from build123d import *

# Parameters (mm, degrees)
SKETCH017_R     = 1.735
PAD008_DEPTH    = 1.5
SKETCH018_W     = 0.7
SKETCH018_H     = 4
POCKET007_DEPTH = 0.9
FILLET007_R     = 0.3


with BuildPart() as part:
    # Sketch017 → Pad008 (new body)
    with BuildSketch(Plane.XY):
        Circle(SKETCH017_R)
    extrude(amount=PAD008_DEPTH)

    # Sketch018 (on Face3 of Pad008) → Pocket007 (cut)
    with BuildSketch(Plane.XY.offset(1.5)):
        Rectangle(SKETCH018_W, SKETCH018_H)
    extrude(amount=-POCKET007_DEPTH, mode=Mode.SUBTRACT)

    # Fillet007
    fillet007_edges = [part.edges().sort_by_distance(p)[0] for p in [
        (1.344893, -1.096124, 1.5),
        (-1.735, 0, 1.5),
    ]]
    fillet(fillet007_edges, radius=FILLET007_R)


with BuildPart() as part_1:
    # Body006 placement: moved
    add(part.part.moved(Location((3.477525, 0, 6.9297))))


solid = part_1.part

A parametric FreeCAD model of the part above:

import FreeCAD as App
import Part
import Sketcher


def edges_at(feature, points):
    """Names of the edges that pass closest to the given points."""
    edges = feature.Shape.Edges
    near = lambda p: min(range(len(edges)), key=lambda i: edges[i].distToShape(Part.Vertex(*p))[0])
    return sorted({f"Edge{near(p) + 1}" for p in points})

doc = App.newDocument("Part")
body = doc.addObject("PartDesign::Body", "Body")

# Sketch on XY plane
sketch1 = body.newObject("Sketcher::SketchObject", "Sketch")
sketch1.AttachmentSupport = (doc.getObject("XY_Plane"), [""])
sketch1.MapMode = "FlatFace"
sketch1.addGeometry(Part.Circle(App.Vector(0, 0, 0), App.Vector(0, 0, 1), 1.7), False)
sketch1.addConstraint(Sketcher.Constraint("Coincident", 0, 3, -1, 1))
sketch1.addConstraint(Sketcher.Constraint("Diameter", 0, 3.47))
pad1 = body.newObject("PartDesign::Pad", "Pad")
pad1.Profile = sketch1
pad1.Length = 1.5

# Sketch on XY plane
sketch2 = body.newObject("Sketcher::SketchObject", "Sketch001")
sketch2.AttachmentSupport = (doc.getObject("XY_Plane"), [""])
sketch2.MapMode = "FlatFace"
sketch2.AttachmentOffset = App.Placement(App.Vector(0, 0, 1.5), App.Rotation())
sketch2.addGeometry(Part.LineSegment(App.Vector(-0.3, 2, 0), App.Vector(-0.3, -2, 0)), False)
sketch2.addGeometry(Part.LineSegment(App.Vector(-0.3, -2, 0), App.Vector(0.3, -2, 0)), False)
sketch2.addGeometry(Part.LineSegment(App.Vector(0.3, -2, 0), App.Vector(0.3, 2, 0)), False)
sketch2.addGeometry(Part.LineSegment(App.Vector(0.3, 2, 0), App.Vector(-0.3, 2, 0)), False)
sketch2.addConstraint(Sketcher.Constraint("Coincident", 0, 2, 1, 1))
sketch2.addConstraint(Sketcher.Constraint("Coincident", 1, 2, 2, 1))
sketch2.addConstraint(Sketcher.Constraint("Coincident", 2, 2, 3, 1))
sketch2.addConstraint(Sketcher.Constraint("Coincident", 3, 2, 0, 1))
sketch2.addConstraint(Sketcher.Constraint("Vertical", 0))
sketch2.addConstraint(Sketcher.Constraint("Horizontal", 1))
sketch2.addConstraint(Sketcher.Constraint("Vertical", 2))
sketch2.addConstraint(Sketcher.Constraint("Horizontal", 3))
sketch2.addConstraint(Sketcher.Constraint("Symmetric", 0, 2, 2, 2, -1, 1))
sketch2.addConstraint(Sketcher.Constraint("DistanceY", 0, 2, 0, 1, 4.0))
sketch2.addConstraint(Sketcher.Constraint("DistanceX", 1, 1, 1, 2, 0.7))
pocket1 = body.newObject("PartDesign::Pocket", "Pocket")
pocket1.Profile = sketch2
pocket1.Length = 0.9
doc.recompute()

fillet = body.newObject("PartDesign::Fillet", "Fillet")
fillet.Base = (pocket1, edges_at(pocket1, [(1.345, -1.096, 1.5), (-1.735, 0, 1.5)]))
fillet.Radius = 0.3
body2 = doc.addObject("PartDesign::Body", "Body001")
doc.recompute()

body.Placement = App.Placement(App.Vector(3.477525, 0, 6.9297), App.Rotation(App.Vector(0, 0, 1), 0))
boolean = body2.newObject("PartDesign::Boolean", "Boolean")
boolean.Type = "Fuse"
boolean.addObjects([body])

doc.recompute()
